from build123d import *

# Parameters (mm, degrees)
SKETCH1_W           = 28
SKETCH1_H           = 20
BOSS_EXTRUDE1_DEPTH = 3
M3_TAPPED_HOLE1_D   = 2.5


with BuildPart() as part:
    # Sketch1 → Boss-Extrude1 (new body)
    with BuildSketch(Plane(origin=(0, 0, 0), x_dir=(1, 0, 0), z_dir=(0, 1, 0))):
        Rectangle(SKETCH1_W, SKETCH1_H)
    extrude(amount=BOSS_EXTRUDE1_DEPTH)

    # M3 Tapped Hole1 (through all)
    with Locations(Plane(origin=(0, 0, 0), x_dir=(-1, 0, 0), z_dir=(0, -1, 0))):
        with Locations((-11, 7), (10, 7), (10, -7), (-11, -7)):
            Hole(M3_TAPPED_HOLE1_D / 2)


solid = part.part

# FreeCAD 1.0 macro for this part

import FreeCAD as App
import Part
import Sketcher


def add_polygon(sketch, points):
    """Adds a closed chain of lines whose ends are joined by coincident constraints."""
    first, n = sketch.GeometryCount, len(points)
    for a, b in zip(points, points[1:] + points[:1]):
        sketch.addGeometry(Part.LineSegment(App.Vector(*a, 0), App.Vector(*b, 0)), False)
    for i in range(n):
        sketch.addConstraint(Sketcher.Constraint("Coincident", first + i, 2, first + (i + 1) % n, 1))

doc = App.newDocument("Part")
body = doc.addObject("PartDesign::Body", "Body")

# Sketch on XZ plane
sketch1 = doc.addObject("Sketcher::SketchObject", "Sketch")
body.addObject(sketch1)
sketch1.AttachmentSupport = (doc.XZ_Plane, [""])
sketch1.MapMode = "FlatFace"
add_polygon(sketch1, [(-14, -10), (-14, 10), (14, 10), (14, -10)])  # lines 0-3
sketch1.addConstraint(Sketcher.Constraint("Vertical", 0))
sketch1.addConstraint(Sketcher.Constraint("Horizontal", 1))
sketch1.addConstraint(Sketcher.Constraint("Vertical", 2))
sketch1.addConstraint(Sketcher.Constraint("Horizontal", 3))
sketch1.addConstraint(Sketcher.Constraint("Symmetric", 0, 2, 2, 2, -1, 1))
sketch1.addConstraint(Sketcher.Constraint("DistanceX", 1, 1, 1, 2, 28.0))
sketch1.addConstraint(Sketcher.Constraint("DistanceY", 0, 1, 0, 2, 20.0))
pad1 = doc.addObject("PartDesign::Pad", "Pad")
body.addObject(pad1)
pad1.Profile = sketch1
pad1.Length = 3
pad1.Reversed = True

# Sketch on XZ plane
sketch2 = doc.addObject("Sketcher::SketchObject", "Sketch001")
body.addObject(sketch2)
sketch2.AttachmentSupport = (doc.XZ_Plane, [""])
sketch2.MapMode = "FlatFace"
sketch2.addGeometry(Part.Circle(App.Vector(11, -7, 0), App.Vector(0, 0, 1), 1.2), False)
sketch2.addGeometry(Part.Circle(App.Vector(-10, -7, 0), App.Vector(0, 0, 1), 1.2), False)
sketch2.addGeometry(Part.Circle(App.Vector(-10, 7, 0), App.Vector(0, 0, 1), 1.2), False)
sketch2.addGeometry(Part.Circle(App.Vector(11, 7, 0), App.Vector(0, 0, 1), 1.2), False)
sketch2.addConstraint(Sketcher.Constraint("Equal", 0, 1))
sketch2.addConstraint(Sketcher.Constraint("Equal", 1, 2))
sketch2.addConstraint(Sketcher.Constraint("Equal", 2, 3))
sketch2.addConstraint(Sketcher.Constraint("Symmetric", 1, 3, 2, 3, -1))
sketch2.addConstraint(Sketcher.Constraint("Symmetric", 0, 3, 3, 3, -1))
sketch2.addConstraint(Sketcher.Constraint("Horizontal", 0, 3, 1, 3))
sketch2.addConstraint(Sketcher.Constraint("Diameter", 0, 2.5))
sketch2.addConstraint(Sketcher.Constraint("DistanceX", -1, 1, 0, 3, 11.0))
sketch2.addConstraint(Sketcher.Constraint("DistanceY", 0, 3, -1, 1, 7.0))
sketch2.addConstraint(Sketcher.Constraint("DistanceX", 1, 3, -1, 1, 10.0))
doc.recompute()
hole = doc.addObject("PartDesign::Hole", "Hole")
body.addObject(hole)
hole.Profile = sketch2
hole.ThreadType = "None"
hole.Diameter = 2.5
hole.DepthType = "ThroughAll"

doc.recompute()
